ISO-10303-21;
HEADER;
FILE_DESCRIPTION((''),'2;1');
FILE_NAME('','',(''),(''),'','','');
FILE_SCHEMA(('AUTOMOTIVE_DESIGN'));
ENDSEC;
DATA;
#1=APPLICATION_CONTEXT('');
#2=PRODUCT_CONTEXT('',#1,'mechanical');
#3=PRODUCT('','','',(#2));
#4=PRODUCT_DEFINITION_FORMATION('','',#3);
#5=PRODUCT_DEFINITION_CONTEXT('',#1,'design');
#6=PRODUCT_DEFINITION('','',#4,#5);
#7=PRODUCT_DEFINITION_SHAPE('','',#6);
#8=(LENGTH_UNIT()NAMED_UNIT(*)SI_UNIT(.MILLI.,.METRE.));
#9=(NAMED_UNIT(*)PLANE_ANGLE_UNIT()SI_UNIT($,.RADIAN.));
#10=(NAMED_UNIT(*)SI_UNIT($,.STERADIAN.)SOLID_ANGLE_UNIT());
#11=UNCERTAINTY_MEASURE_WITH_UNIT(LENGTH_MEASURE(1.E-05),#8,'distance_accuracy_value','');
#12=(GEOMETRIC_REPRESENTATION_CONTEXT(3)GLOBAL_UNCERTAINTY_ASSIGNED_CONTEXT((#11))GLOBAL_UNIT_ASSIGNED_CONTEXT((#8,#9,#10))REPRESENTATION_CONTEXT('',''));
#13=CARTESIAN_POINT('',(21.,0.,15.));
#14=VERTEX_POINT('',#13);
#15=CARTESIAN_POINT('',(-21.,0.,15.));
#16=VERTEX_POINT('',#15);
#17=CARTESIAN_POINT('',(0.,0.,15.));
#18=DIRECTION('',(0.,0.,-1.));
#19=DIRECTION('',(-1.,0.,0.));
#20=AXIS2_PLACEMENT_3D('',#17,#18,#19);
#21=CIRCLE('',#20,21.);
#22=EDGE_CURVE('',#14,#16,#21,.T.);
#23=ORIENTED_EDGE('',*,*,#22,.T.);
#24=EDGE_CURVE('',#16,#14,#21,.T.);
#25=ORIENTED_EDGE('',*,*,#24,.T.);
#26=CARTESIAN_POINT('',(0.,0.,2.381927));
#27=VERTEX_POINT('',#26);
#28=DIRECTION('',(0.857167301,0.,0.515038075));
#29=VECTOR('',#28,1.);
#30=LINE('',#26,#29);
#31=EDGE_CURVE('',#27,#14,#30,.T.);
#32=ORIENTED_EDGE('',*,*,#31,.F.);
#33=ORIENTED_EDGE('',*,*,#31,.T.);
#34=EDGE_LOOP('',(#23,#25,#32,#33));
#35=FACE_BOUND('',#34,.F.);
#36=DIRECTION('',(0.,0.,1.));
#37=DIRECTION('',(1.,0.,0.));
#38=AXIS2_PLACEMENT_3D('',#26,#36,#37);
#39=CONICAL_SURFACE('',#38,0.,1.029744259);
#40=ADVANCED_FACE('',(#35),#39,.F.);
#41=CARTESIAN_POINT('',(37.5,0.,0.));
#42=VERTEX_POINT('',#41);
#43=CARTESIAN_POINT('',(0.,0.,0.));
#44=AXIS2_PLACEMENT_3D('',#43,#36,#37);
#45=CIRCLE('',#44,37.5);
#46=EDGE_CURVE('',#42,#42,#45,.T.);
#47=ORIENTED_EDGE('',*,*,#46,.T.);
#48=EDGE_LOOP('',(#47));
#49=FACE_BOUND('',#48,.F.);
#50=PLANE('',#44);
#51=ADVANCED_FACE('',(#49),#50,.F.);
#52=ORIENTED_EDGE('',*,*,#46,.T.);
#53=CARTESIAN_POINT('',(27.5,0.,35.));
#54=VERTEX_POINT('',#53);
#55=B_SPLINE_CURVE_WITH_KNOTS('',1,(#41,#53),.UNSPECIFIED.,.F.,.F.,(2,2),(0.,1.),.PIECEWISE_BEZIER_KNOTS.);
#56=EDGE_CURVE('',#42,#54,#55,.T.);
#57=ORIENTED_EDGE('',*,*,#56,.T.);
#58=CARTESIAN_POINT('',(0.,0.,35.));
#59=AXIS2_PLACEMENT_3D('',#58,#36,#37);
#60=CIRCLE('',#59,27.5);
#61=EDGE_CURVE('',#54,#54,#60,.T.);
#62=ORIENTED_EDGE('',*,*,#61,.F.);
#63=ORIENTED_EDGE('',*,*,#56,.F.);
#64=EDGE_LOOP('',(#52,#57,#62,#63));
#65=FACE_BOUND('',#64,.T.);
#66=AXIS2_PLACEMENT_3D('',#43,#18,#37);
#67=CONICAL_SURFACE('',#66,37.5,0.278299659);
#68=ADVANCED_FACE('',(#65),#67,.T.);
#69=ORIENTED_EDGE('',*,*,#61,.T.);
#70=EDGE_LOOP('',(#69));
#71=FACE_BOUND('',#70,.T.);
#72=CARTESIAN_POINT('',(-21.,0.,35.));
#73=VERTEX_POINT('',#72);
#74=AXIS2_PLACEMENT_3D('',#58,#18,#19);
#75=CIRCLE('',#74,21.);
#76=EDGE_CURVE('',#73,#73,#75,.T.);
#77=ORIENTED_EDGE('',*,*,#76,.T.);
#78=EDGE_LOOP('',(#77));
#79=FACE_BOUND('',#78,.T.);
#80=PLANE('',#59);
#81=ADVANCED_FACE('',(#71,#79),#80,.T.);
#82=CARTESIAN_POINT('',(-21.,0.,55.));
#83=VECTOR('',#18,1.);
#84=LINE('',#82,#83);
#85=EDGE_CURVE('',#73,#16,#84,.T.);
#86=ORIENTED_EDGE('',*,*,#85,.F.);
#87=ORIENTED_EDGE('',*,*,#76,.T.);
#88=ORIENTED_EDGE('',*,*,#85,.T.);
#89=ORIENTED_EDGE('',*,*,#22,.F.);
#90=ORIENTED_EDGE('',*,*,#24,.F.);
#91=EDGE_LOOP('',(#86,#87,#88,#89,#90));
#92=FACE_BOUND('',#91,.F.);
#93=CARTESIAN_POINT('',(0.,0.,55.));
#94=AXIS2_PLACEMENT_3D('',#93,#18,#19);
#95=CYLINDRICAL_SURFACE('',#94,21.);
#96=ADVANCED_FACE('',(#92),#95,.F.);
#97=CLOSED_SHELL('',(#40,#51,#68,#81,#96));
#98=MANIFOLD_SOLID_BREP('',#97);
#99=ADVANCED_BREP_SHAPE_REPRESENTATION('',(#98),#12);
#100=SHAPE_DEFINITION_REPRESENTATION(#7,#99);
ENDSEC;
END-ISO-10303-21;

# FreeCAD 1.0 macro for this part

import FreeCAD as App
import Part
import Sketcher
from FreeCAD import Vector

doc = App.newDocument("Part")
body = doc.addObject("PartDesign::Body", "Body")

# Sketch on XY plane
sketch1 = body.newObject("Sketcher::SketchObject", "Sketch")
sketch1.AttachmentSupport = (doc.getObject("XY_Plane"), [""])
sketch1.MapMode = "FlatFace"
sketch1.addGeometry(Part.Circle(Vector(0, 0, 0), Vector(0, 0, 1), 38), False)
sketch1.addConstraint(Sketcher.Constraint("Coincident", 0, 3, -1, 1))
sketch1.addConstraint(Sketcher.Constraint("Diameter", 0, 75.0))

# Sketch on XY plane
sketch2 = body.newObject("Sketcher::SketchObject", "Sketch001")
sketch2.AttachmentSupport = (doc.getObject("XY_Plane"), [""])
sketch2.MapMode = "FlatFace"
sketch2.AttachmentOffset = App.Placement(Vector(0, 0, 35), App.Rotation())
sketch2.addGeometry(Part.Circle(Vector(0, 0, 0), Vector(0, 0, 1), 28), False)
sketch2.addConstraint(Sketcher.Constraint("Coincident", 0, 3, -1, 1))
sketch2.addConstraint(Sketcher.Constraint("Diameter", 0, 55.0))

additiveloft = body.newObject("PartDesign::AdditiveLoft", "AdditiveLoft")
additiveloft.Profile = sketch1
additiveloft.Sections = [sketch2]

# Sketch on XY plane
sketch3 = body.newObject("Sketcher::SketchObject", "Sketch002")
sketch3.AttachmentSupport = (doc.getObject("XY_Plane"), [""])
sketch3.MapMode = "FlatFace"
sketch3.AttachmentOffset = App.Placement(Vector(0, 0, 35), App.Rotation())
sketch3.addGeometry(Part.Circle(Vector(0, 0, 0), Vector(0, 0, 1), 21), False)
sketch3.addConstraint(Sketcher.Constraint("Coincident", 0, 3, -1, 1))
sketch3.addConstraint(Sketcher.Constraint("Diameter", 0, 42.0))
doc.recompute()
hole = body.newObject("PartDesign::Hole", "Hole")
hole.Profile = sketch3
hole.ThreadType = "None"
hole.Diameter = 42
hole.DepthType = "Dimension"
hole.Depth = 20
hole.DrillPoint = "Angled"
hole.DrillPointAngle = 118

doc.recompute()
